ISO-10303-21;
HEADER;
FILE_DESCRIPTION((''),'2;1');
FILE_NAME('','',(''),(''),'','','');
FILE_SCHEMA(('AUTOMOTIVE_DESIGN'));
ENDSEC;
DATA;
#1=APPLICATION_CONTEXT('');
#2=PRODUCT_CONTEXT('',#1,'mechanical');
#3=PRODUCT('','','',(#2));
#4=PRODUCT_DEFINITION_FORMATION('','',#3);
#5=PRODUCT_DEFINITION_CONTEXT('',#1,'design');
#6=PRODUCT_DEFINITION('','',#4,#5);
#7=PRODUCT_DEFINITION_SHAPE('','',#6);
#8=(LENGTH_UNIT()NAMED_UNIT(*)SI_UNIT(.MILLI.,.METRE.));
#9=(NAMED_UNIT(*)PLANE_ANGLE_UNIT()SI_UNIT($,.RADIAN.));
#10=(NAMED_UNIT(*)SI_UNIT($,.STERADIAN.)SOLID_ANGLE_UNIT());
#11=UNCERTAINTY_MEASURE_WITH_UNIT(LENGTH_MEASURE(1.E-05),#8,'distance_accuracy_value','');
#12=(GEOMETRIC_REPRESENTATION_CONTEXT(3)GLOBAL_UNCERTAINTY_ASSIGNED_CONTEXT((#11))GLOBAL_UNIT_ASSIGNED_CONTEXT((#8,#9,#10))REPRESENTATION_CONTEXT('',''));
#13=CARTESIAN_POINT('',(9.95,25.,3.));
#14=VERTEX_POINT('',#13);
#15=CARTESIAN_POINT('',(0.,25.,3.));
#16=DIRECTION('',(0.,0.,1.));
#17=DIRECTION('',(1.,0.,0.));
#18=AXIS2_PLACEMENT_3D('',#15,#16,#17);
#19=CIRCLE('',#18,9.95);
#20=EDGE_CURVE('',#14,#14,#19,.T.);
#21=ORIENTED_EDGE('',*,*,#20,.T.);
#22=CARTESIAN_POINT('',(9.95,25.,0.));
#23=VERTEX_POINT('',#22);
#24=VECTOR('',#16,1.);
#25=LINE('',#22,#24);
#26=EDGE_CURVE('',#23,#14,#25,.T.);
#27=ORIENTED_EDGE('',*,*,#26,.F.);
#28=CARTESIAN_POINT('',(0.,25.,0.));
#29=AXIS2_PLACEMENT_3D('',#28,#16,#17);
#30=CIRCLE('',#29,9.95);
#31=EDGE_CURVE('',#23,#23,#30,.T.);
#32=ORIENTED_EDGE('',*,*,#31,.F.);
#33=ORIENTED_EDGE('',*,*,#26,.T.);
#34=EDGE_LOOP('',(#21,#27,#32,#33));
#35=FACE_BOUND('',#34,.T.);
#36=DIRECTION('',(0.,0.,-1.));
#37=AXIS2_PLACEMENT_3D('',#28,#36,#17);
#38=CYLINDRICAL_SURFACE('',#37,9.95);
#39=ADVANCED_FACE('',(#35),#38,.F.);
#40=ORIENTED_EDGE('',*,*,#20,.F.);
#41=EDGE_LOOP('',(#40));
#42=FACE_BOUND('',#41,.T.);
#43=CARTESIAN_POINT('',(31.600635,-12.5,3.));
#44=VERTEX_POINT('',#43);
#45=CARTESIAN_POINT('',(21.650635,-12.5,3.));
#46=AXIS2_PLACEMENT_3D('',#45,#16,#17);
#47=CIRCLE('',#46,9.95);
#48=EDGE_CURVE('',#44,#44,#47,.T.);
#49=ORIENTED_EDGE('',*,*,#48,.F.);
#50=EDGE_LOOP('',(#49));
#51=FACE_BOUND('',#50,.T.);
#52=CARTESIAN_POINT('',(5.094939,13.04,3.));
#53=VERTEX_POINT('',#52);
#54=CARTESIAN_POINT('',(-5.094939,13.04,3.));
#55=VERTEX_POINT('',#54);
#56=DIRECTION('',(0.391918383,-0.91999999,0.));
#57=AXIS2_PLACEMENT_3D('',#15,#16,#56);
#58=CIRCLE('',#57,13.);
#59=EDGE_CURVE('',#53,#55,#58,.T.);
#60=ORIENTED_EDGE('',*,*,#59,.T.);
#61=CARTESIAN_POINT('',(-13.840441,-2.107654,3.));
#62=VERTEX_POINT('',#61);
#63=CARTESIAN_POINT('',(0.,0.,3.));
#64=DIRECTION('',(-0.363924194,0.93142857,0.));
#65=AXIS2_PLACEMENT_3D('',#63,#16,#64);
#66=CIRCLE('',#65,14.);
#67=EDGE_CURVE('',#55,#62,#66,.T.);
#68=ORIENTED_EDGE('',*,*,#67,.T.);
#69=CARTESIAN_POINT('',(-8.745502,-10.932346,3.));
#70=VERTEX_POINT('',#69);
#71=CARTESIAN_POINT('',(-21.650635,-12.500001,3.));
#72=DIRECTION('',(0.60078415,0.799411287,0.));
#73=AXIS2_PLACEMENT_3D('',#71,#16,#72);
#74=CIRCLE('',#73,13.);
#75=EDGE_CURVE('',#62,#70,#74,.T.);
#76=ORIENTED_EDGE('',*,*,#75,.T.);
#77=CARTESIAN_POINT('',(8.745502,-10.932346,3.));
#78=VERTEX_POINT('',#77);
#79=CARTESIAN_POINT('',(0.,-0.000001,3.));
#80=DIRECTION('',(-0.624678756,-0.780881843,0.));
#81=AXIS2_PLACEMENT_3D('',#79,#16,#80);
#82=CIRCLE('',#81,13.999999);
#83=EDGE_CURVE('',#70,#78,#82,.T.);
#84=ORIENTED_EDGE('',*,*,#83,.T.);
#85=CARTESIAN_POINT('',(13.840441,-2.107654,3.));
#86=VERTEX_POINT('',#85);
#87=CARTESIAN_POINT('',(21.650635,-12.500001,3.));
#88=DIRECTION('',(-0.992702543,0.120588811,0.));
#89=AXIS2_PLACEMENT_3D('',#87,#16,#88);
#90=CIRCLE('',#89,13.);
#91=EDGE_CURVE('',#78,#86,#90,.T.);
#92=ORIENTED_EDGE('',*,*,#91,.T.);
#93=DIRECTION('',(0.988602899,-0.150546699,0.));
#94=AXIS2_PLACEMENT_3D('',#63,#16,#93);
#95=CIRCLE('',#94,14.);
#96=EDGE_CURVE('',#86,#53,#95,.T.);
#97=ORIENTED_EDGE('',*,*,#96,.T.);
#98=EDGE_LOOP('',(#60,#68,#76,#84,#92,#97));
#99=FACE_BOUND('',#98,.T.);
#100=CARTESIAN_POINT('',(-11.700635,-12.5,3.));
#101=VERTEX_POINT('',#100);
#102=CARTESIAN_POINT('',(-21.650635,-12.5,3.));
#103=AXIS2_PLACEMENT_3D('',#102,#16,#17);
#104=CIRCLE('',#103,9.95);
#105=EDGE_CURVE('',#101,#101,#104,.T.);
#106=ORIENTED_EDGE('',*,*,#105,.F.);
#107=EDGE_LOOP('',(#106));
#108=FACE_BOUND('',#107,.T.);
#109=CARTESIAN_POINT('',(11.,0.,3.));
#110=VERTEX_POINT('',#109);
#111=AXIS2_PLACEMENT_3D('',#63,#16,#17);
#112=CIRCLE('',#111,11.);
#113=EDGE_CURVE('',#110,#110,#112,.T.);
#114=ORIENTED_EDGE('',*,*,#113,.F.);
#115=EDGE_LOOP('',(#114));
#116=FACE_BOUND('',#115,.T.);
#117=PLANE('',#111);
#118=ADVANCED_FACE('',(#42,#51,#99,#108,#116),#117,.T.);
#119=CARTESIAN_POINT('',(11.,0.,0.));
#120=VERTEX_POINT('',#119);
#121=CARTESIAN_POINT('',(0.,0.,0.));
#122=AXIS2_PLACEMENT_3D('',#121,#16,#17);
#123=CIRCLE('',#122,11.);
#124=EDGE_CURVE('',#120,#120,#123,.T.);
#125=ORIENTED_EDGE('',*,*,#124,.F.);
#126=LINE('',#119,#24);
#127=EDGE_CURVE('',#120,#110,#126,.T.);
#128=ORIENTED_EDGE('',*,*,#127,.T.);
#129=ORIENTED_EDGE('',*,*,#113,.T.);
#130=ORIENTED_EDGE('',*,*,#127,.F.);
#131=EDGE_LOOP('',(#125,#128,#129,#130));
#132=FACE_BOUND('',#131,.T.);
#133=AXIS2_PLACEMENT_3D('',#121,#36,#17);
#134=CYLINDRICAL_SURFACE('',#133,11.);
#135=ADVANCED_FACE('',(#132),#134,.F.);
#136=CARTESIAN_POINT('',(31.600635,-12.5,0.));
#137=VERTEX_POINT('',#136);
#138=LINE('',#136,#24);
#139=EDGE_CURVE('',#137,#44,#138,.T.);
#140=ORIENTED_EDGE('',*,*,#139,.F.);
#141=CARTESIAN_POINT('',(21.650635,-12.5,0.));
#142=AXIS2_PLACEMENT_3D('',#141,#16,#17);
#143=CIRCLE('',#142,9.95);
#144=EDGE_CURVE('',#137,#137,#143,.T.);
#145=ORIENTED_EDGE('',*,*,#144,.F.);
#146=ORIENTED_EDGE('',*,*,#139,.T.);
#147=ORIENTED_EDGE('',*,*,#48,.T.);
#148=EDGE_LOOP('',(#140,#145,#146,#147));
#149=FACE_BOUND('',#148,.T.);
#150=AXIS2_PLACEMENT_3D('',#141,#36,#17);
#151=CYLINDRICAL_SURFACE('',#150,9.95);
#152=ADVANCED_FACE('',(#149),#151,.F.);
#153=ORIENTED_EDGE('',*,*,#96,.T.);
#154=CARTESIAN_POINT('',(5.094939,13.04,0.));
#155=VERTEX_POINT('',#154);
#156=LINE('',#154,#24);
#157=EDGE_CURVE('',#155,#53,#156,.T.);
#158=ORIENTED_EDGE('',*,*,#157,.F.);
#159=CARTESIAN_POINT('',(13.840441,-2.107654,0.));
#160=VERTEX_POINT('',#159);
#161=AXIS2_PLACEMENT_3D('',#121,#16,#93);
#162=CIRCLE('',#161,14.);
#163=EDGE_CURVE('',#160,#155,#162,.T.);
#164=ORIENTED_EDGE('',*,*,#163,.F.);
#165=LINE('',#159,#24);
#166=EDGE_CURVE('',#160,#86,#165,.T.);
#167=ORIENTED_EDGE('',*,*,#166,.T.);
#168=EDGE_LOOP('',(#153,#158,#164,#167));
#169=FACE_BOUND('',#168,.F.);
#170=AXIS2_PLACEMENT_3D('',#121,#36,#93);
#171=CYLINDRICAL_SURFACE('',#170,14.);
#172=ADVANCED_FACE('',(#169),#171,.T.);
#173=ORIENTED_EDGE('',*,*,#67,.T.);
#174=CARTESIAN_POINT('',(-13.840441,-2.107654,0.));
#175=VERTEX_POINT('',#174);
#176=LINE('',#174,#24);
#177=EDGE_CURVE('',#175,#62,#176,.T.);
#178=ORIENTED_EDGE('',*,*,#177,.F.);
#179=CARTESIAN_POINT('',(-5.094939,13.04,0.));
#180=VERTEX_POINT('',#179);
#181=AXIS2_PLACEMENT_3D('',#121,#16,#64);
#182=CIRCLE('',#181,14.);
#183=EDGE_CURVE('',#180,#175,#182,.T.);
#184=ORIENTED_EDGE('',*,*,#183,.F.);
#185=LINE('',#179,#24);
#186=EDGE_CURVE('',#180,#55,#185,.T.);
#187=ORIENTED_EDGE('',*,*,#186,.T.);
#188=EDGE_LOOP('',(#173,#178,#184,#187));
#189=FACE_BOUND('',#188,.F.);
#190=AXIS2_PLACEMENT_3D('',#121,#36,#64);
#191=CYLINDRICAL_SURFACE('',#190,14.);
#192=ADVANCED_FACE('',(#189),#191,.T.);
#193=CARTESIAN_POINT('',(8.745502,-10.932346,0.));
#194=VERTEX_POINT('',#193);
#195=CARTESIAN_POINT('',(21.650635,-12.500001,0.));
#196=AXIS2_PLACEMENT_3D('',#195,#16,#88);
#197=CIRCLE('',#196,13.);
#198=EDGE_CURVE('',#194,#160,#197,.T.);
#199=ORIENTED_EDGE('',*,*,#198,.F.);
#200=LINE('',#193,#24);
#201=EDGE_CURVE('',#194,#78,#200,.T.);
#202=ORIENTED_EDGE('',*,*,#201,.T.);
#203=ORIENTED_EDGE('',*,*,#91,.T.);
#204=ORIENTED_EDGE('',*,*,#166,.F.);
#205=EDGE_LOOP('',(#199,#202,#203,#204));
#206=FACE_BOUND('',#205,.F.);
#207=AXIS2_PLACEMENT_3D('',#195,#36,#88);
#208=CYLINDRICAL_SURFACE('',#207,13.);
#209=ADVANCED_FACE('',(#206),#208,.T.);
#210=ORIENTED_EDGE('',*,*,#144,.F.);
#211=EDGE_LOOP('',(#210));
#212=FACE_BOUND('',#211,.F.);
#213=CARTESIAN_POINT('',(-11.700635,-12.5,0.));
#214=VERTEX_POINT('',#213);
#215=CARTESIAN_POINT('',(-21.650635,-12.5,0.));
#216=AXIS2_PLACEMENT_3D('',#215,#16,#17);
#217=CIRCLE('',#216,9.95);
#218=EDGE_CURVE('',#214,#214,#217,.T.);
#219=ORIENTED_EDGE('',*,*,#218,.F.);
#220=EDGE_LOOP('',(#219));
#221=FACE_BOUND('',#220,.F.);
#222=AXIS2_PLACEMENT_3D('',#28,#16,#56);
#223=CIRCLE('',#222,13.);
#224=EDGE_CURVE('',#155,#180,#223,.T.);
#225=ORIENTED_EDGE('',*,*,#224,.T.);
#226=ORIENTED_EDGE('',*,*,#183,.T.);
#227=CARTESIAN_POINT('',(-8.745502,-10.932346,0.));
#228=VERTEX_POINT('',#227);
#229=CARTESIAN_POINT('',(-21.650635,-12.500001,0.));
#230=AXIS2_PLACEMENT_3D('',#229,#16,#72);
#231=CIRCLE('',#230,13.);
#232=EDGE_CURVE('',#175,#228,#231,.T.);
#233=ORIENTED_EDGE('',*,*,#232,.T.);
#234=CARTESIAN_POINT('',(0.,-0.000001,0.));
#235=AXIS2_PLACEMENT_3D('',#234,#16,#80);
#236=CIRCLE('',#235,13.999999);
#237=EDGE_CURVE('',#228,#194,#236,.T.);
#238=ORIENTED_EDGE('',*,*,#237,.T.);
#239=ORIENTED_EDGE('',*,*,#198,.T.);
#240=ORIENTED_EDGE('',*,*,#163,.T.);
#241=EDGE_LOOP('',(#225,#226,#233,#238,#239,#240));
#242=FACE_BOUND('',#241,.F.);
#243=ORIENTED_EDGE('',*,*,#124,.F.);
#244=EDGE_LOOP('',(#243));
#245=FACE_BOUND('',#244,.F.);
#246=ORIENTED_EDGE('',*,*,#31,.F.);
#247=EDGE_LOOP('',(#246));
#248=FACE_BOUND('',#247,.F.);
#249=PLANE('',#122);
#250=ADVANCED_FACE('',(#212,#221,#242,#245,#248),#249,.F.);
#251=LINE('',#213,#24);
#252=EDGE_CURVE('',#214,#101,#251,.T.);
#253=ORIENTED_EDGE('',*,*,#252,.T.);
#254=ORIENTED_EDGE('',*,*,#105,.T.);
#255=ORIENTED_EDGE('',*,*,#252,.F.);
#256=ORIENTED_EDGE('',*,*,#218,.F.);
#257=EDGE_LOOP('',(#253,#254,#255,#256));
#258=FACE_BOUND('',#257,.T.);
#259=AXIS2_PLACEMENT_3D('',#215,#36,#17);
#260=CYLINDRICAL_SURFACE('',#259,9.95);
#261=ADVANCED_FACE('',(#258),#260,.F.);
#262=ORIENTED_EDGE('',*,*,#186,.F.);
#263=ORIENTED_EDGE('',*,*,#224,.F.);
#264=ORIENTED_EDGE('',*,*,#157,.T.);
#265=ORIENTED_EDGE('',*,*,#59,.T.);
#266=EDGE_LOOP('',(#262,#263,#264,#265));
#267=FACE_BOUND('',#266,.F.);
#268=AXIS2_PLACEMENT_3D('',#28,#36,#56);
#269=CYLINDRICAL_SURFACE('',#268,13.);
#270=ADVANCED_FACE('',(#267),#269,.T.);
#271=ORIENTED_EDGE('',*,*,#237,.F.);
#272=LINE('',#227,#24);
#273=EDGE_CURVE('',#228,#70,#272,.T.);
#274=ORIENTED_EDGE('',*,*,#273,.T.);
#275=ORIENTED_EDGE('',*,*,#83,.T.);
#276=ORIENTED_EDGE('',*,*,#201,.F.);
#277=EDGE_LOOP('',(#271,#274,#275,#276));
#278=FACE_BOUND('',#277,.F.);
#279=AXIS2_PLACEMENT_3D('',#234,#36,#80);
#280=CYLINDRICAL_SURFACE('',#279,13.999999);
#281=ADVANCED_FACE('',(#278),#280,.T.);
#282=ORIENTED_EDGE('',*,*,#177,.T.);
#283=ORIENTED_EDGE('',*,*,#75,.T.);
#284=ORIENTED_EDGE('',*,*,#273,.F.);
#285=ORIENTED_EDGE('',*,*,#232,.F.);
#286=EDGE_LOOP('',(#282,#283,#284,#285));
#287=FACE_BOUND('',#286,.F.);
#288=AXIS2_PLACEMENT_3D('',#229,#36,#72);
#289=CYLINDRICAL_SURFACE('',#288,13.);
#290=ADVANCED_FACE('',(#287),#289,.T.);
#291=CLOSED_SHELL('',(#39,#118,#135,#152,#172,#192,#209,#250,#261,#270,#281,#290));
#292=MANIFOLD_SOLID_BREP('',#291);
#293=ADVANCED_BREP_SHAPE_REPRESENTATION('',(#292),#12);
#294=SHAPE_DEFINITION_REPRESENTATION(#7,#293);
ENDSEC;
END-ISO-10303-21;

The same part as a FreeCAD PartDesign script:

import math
import FreeCAD as App
import Part
import Sketcher

doc = App.newDocument("Part")
body = doc.addObject("PartDesign::Body", "Body")

sketch1 = doc.addObject("Sketcher::SketchObject", "Sketch")
body.addObject(sketch1)
sketch1.AttachmentSupport = (doc.XY_Plane, [""])
sketch1.MapMode = "FlatFace"
sketch1.addGeometry(Part.ArcOfCircle(Part.Circle(App.Vector(0, 25, 0), App.Vector(0, 0, 1), 13), math.radians(-66.92608), math.radians(246.92608)), False)
sketch1.addGeometry(Part.ArcOfCircle(Part.Circle(App.Vector(0, 0, 0), App.Vector(0, 0, 1), 14), math.radians(111.341391), math.radians(188.65861)), False)
sketch1.addGeometry(Part.ArcOfCircle(Part.Circle(App.Vector(-21.650635, -12.500001, 0), App.Vector(0, 0, 1), 13), math.radians(53.073921), math.radians(366.926086)), False)
sketch1.addGeometry(Part.ArcOfCircle(Part.Circle(App.Vector(0, -0.000001, 0), App.Vector(0, 0, 1), 13.999999), math.radians(-128.658613), math.radians(-51.341387)), False)
sketch1.addGeometry(Part.ArcOfCircle(Part.Circle(App.Vector(21.650635, -12.500001, 0), App.Vector(0, 0, 1), 13), math.radians(173.073914), math.radians(486.926079)), False)
sketch1.addGeometry(Part.ArcOfCircle(Part.Circle(App.Vector(0, 0, 0), App.Vector(0, 0, 1), 14), math.radians(-8.65861), math.radians(68.658609)), False)
sketch1.addGeometry(Part.Circle(App.Vector(-21.650635, -12.5, 0), App.Vector(0, 0, 1), 9.95), False)
sketch1.addGeometry(Part.Circle(App.Vector(21.650635, -12.5, 0), App.Vector(0, 0, 1), 9.95), False)
sketch1.addGeometry(Part.Circle(App.Vector(0, 0, 0), App.Vector(0, 0, 1), 11), False)
sketch1.addGeometry(Part.Circle(App.Vector(0, 25, 0), App.Vector(0, 0, 1), 9.95), False)
sketch1.addConstraint(Sketcher.Constraint("Coincident", 0, 2, 1, 1))
sketch1.addConstraint(Sketcher.Constraint("Coincident", 1, 2, 2, 1))
sketch1.addConstraint(Sketcher.Constraint("Coincident", 2, 2, 3, 1))
sketch1.addConstraint(Sketcher.Constraint("Coincident", 3, 2, 4, 1))
sketch1.addConstraint(Sketcher.Constraint("Coincident", 4, 2, 5, 1))
sketch1.addConstraint(Sketcher.Constraint("Coincident", 5, 2, 0, 1))
sketch1.addConstraint(Sketcher.Constraint("Coincident", 1, 3, -1, 1))
sketch1.addConstraint(Sketcher.Constraint("Coincident", 3, 3, -1, 1))
sketch1.addConstraint(Sketcher.Constraint("Coincident", 5, 3, -1, 1))
sketch1.addConstraint(Sketcher.Constraint("Coincident", 8, 3, -1, 1))
sketch1.addConstraint(Sketcher.Constraint("Coincident", 6, 3, 2, 3))
sketch1.addConstraint(Sketcher.Constraint("Coincident", 7, 3, 4, 3))
sketch1.addConstraint(Sketcher.Constraint("Coincident", 9, 3, 0, 3))
sketch1.addConstraint(Sketcher.Constraint("Equal", 0, 2))
sketch1.addConstraint(Sketcher.Constraint("Equal", 1, 3))
sketch1.addConstraint(Sketcher.Constraint("Equal", 2, 4))
sketch1.addConstraint(Sketcher.Constraint("Equal", 3, 5))
sketch1.addConstraint(Sketcher.Constraint("Equal", 6, 7))
sketch1.addConstraint(Sketcher.Constraint("Equal", 7, 9))
sketch1.addConstraint(Sketcher.Constraint("Symmetric", 2, 3, 4, 3, -2))
sketch1.addConstraint(Sketcher.Constraint("PointOnObject", 0, 3, -2))
sketch1.addConstraint(Sketcher.Constraint("Diameter", 8, 22.0))
sketch1.addConstraint(Sketcher.Constraint("Radius", 0, 13.0))
sketch1.addConstraint(Sketcher.Constraint("Radius", 1, 14.0))
sketch1.addConstraint(Sketcher.Constraint("Diameter", 6, 19.9))
sketch1.addConstraint(Sketcher.Constraint("DistanceY", -1, 1, 0, 3, 25.0))
sketch1.addConstraint(Sketcher.Constraint("DistanceY", 2, 3, -1, 1, 12.500001))
sketch1.addConstraint(Sketcher.Constraint("DistanceX", -1, 1, 3, 2, 8.745502))
pad1 = doc.addObject("PartDesign::Pad", "Pad")
body.addObject(pad1)
pad1.Profile = sketch1
pad1.Length = 3

doc.recompute()
